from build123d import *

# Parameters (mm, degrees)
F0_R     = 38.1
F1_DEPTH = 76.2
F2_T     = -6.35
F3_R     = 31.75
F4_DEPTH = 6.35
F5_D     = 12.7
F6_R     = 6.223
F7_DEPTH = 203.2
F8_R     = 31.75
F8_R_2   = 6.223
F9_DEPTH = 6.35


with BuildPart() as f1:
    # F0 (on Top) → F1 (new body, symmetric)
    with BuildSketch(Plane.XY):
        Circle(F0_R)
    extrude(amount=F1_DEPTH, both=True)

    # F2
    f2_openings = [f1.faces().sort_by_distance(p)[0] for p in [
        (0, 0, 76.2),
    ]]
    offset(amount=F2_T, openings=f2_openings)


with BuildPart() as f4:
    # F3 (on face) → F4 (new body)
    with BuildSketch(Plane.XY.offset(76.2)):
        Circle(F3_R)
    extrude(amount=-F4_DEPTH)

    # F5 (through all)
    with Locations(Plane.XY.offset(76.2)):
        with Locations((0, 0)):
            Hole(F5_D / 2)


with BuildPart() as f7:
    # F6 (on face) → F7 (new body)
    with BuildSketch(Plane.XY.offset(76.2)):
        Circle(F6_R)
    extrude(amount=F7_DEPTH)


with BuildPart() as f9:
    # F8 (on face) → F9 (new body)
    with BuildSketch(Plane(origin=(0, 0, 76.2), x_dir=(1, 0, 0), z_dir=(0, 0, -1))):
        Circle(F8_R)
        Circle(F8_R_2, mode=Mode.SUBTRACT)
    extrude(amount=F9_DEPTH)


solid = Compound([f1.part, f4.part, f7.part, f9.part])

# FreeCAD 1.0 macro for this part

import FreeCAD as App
import Part
import Sketcher
from FreeCAD import Vector
Q = App.Units.Quantity


def faces_at(feature, points):
    """Names of the faces that lie closest to the given points."""
    faces = feature.Shape.Faces
    near = lambda p: min(range(len(faces)), key=lambda i: faces[i].distToShape(Part.Vertex(*p))[0])
    return sorted({f"Face{near(p) + 1}" for p in points})

doc = App.newDocument("Part")
params = doc.addObject("Spreadsheet::Sheet", "Params")
for row, (alias, value) in enumerate([
    ("sketch1_diameter", "3 in"),
    ("pad1_length", "6 in"),
    ("thickness_wall", "0.25 in"),
    ("sketch2_diameter", "2.5 in"),
    ("pad2_length", "0.25 in"),
    ("sketch3_diameter", "0.5 in"),
    ("hole_diameter", "0.5 in"),
    ("sketch4_diameter", "0.49 in"),
    ("pad3_length", "8 in"),
    ("sketch5_diameter", "2.5 in"),
    ("sketch5_diameter2", "0.49 in"),
    ("pad4_length", "0.25 in"),
], start=1):
    params.set(f"A{row}", alias)
    params.set(f"B{row}", "=" + value)
    params.setAlias(f"B{row}", alias)

body = doc.addObject("PartDesign::Body", "Body")

# Sketch on XY plane
sketch1 = body.newObject("Sketcher::SketchObject", "Sketch")
sketch1.AttachmentSupport = (doc.getObject("XY_Plane"), [""])
sketch1.MapMode = "FlatFace"
sketch1.addGeometry(Part.Circle(Vector(0, 0, 0), Vector(0, 0, 1), 38.1), False)
sketch1.addConstraint([
    Sketcher.Constraint("Coincident", 0, 3, -1, 1),
    Sketcher.Constraint("Diameter", 0, Q("3 in")),
])
sketch1.setExpression("Constraints[1]", "Params.sketch1_diameter")
pad1 = body.newObject("PartDesign::Pad", "Pad")
pad1.Profile = sketch1
pad1.setExpression("Length", "Params.pad1_length")
pad1.Midplane = True
doc.recompute()

thickness = body.newObject("PartDesign::Thickness", "Thickness")
thickness.Base = (pad1, faces_at(pad1, [(0, 0, 76.2)]))
thickness.setExpression("Value", "Params.thickness_wall")
thickness.Reversed = True
thickness.Join = "Arc"
body2 = doc.addObject("PartDesign::Body", "Body001")

# Sketch on XY plane
sketch2 = body2.newObject("Sketcher::SketchObject", "Sketch001")
sketch2.AttachmentSupport = (doc.getObject("XY_Plane001"), [""])
sketch2.MapMode = "FlatFace"
sketch2.AttachmentOffset = App.Placement(Vector(0, 0, 3 * 25.4), App.Rotation())
sketch2.addGeometry(Part.Circle(Vector(0, 0, 0), Vector(0, 0, 1), 31.75), False)
sketch2.addConstraint([
    Sketcher.Constraint("Coincident", 0, 3, -1, 1),
    Sketcher.Constraint("Diameter", 0, Q("2.5 in")),
])
sketch2.setExpression("Constraints[1]", "Params.sketch2_diameter")
pad2 = body2.newObject("PartDesign::Pad", "Pad001")
pad2.Profile = sketch2
pad2.setExpression("Length", "Params.pad2_length")
pad2.Reversed = True

# Sketch on XY plane
sketch3 = body2.newObject("Sketcher::SketchObject", "Sketch002")
sketch3.AttachmentSupport = (doc.getObject("XY_Plane001"), [""])
sketch3.MapMode = "FlatFace"
sketch3.AttachmentOffset = App.Placement(Vector(0, 0, 3 * 25.4), App.Rotation())
sketch3.addGeometry(Part.Circle(Vector(0, 0, 0), Vector(0, 0, 1), 6.35), False)
sketch3.addConstraint([
    Sketcher.Constraint("Coincident", 0, 3, -1, 1),
    Sketcher.Constraint("Diameter", 0, Q("0.5 in")),
])
sketch3.setExpression("Constraints[1]", "Params.sketch3_diameter")
doc.recompute()
hole = body2.newObject("PartDesign::Hole", "Hole")
hole.Profile = sketch3
hole.ThreadType = "None"
hole.setExpression("Diameter", "Params.hole_diameter")
hole.DepthType = "ThroughAll"
body3 = doc.addObject("PartDesign::Body", "Body002")

# Sketch on XY plane
sketch4 = body3.newObject("Sketcher::SketchObject", "Sketch003")
sketch4.AttachmentSupport = (doc.getObject("XY_Plane002"), [""])
sketch4.MapMode = "FlatFace"
sketch4.AttachmentOffset = App.Placement(Vector(0, 0, 3 * 25.4), App.Rotation())
sketch4.addGeometry(Part.Circle(Vector(0, 0, 0), Vector(0, 0, 1), 6.223), False)
sketch4.addConstraint([
    Sketcher.Constraint("Coincident", 0, 3, -1, 1),
    Sketcher.Constraint("Diameter", 0, Q("0.49 in")),
])
sketch4.setExpression("Constraints[1]", "Params.sketch4_diameter")
pad3 = body3.newObject("PartDesign::Pad", "Pad002")
pad3.Profile = sketch4
pad3.setExpression("Length", "Params.pad3_length")
body4 = doc.addObject("PartDesign::Body", "Body003")

# Sketch on XY plane
sketch5 = body4.newObject("Sketcher::SketchObject", "Sketch004")
sketch5.AttachmentSupport = (doc.getObject("XY_Plane003"), [""])
sketch5.MapMode = "FlatFace"
sketch5.AttachmentOffset = App.Placement(Vector(0, 0, 3 * 25.4), App.Rotation())
sketch5.addGeometry([
    Part.Circle(Vector(0, 0, 0), Vector(0, 0, 1), 31.75),
    Part.Circle(Vector(0, 0, 0), Vector(0, 0, 1), 6.223),
], False)
sketch5.addConstraint([
    Sketcher.Constraint("Coincident", 0, 3, -1, 1),
    Sketcher.Constraint("Coincident", 1, 3, -1, 1),
    Sketcher.Constraint("Diameter", 0, Q("2.5 in")),
    Sketcher.Constraint("Diameter", 1, Q("0.49 in")),
])
sketch5.setExpression("Constraints[2]", "Params.sketch5_diameter")
sketch5.setExpression("Constraints[3]", "Params.sketch5_diameter2")
pad4 = body4.newObject("PartDesign::Pad", "Pad003")
pad4.Profile = sketch5
pad4.setExpression("Length", "Params.pad4_length")
pad4.Reversed = True

doc.recompute()
